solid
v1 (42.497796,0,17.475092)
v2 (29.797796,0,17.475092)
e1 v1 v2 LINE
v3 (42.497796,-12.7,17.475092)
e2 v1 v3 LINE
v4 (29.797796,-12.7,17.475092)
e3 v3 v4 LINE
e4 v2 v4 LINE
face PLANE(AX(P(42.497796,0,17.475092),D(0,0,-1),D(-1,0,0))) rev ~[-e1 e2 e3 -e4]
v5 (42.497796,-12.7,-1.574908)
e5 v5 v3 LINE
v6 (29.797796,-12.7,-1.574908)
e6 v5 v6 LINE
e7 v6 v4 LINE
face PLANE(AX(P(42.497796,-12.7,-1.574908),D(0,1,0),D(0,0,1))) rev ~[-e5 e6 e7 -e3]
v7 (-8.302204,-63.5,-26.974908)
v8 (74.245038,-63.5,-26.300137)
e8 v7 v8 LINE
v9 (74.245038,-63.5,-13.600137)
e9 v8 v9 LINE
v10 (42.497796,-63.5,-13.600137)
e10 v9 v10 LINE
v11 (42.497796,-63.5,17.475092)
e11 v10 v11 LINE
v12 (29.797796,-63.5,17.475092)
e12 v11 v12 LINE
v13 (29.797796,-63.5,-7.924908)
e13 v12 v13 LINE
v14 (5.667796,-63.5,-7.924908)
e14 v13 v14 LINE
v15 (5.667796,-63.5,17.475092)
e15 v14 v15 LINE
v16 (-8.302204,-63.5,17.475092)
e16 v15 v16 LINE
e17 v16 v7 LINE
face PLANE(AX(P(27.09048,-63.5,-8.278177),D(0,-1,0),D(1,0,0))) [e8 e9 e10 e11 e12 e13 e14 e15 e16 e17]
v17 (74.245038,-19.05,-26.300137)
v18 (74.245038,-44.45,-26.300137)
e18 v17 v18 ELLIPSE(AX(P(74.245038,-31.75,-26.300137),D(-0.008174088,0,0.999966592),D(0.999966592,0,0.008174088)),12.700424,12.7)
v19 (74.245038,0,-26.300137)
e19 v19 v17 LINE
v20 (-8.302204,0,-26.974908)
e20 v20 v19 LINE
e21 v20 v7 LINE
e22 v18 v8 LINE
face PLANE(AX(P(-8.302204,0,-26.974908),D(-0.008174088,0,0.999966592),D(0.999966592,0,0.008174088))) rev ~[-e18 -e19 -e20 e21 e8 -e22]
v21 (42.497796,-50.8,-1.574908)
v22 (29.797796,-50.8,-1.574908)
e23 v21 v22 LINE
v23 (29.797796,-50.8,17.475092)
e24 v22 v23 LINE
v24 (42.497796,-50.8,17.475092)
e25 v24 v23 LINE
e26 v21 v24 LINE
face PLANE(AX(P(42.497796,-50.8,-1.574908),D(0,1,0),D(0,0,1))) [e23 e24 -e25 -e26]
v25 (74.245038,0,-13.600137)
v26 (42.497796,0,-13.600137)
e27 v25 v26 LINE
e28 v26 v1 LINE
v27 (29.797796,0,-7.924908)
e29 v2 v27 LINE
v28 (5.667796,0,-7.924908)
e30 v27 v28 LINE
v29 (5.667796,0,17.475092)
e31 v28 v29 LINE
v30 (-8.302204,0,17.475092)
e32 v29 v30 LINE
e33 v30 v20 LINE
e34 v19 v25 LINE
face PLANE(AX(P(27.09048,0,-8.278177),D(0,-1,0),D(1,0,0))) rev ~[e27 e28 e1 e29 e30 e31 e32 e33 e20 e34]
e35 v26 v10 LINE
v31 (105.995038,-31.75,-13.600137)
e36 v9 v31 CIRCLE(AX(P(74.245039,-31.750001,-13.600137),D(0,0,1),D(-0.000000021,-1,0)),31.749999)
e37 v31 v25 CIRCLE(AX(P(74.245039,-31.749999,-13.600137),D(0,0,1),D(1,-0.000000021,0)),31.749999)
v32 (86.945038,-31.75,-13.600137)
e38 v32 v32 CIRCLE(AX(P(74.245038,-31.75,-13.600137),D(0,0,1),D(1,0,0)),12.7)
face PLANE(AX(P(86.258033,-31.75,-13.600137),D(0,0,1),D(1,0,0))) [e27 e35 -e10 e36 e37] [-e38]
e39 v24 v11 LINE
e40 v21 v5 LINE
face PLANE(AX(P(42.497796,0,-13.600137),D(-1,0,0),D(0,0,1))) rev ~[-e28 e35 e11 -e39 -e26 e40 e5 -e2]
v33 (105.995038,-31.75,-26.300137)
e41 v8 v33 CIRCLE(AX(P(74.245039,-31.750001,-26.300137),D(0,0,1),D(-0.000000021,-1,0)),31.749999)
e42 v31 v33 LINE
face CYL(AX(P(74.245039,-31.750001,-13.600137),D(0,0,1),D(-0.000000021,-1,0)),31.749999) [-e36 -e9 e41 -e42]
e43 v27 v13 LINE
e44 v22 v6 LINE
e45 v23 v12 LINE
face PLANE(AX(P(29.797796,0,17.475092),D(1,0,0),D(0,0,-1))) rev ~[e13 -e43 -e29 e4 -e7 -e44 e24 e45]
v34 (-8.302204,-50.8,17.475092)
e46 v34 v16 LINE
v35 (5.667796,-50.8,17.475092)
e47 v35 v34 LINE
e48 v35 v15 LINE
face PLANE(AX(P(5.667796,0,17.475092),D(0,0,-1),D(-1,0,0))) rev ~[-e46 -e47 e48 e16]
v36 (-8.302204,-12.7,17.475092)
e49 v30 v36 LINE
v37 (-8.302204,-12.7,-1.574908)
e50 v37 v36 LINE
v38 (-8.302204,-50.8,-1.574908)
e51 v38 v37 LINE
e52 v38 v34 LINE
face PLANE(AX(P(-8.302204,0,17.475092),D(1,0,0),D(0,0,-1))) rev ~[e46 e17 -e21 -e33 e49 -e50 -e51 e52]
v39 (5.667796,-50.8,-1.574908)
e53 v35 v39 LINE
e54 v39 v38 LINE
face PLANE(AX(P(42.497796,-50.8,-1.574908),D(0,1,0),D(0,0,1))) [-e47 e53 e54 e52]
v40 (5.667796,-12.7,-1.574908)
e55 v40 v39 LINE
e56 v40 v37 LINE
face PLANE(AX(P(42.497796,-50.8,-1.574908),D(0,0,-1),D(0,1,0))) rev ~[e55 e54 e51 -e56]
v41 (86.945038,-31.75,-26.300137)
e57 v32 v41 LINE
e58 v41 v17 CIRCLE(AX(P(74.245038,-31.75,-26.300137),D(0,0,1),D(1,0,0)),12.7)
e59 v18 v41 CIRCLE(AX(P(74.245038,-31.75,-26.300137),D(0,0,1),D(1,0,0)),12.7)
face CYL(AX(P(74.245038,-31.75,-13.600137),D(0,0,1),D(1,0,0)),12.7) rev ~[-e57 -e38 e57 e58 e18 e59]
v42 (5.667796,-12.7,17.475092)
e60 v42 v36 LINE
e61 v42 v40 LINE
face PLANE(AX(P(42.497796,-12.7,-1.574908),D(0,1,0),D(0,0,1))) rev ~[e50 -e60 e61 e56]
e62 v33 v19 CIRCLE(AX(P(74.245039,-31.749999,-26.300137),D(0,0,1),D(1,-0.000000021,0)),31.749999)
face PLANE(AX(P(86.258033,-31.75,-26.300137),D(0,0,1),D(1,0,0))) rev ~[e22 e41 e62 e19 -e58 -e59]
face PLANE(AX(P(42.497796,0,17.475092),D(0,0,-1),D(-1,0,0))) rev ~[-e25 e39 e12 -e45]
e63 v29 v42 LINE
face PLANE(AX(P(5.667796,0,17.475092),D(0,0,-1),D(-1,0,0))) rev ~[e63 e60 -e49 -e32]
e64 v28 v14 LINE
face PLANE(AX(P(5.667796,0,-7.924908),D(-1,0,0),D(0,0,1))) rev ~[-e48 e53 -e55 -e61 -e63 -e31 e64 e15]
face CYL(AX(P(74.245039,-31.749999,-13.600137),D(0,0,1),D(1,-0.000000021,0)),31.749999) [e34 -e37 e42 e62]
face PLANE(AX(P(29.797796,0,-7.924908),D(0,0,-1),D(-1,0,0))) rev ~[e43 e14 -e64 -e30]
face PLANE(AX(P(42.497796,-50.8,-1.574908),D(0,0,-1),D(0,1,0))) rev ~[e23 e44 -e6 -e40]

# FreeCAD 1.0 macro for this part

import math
import FreeCAD as App
import Part
import Sketcher

V = App.Vector
Q = App.Units.Quantity


def add_polygon(sketch, points):
    """Adds a closed chain of lines whose ends are joined by coincident constraints."""
    first, n = sketch.GeometryCount, len(points)
    for a, b in zip(points, points[1:] + points[:1]):
        sketch.addGeometry(Part.LineSegment(App.Vector(*a, 0), App.Vector(*b, 0)), False)
    for i in range(n):
        sketch.addConstraint(Sketcher.Constraint("Coincident", first + i, 2, first + (i + 1) % n, 1))

doc = App.newDocument("Part")
body = doc.addObject("PartDesign::Body", "Body")

sketch1 = body.newObject("Sketcher::SketchObject", "Sketch")
sketch1.AttachmentSupport = (doc.getObject("XZ_Plane"), [""])
sketch1.MapMode = "FlatFace"
add_polygon(sketch1, [(6, 17), (-8, 17), (-8, -27), (74, -26), (74, -14), (42, -14), (42, 17), (30, 17), (30, -8), (6, -8)])
sketch1.addConstraint([
    Sketcher.Constraint("Horizontal", 0),
    Sketcher.Constraint("Vertical", 1),
    Sketcher.Constraint("Vertical", 3),
    Sketcher.Constraint("Horizontal", 4),
    Sketcher.Constraint("Vertical", 5),
    Sketcher.Constraint("Horizontal", 6),
    Sketcher.Constraint("Vertical", 7),
    Sketcher.Constraint("Horizontal", 8),
    Sketcher.Constraint("Vertical", 9),
    Sketcher.Constraint("Horizontal", 0, 2, 5, 2),
    Sketcher.Constraint("Equal", 6, 3),
    Sketcher.Constraint("DistanceY", 7, 2, 7, 1, Q("1 in")),
    Sketcher.Constraint("DistanceX", 6, 2, 6, 1, Q("0.5 in")),
    Sketcher.Constraint("DistanceX", 1, 2, 4, 2, Q("2 in")),
    Sketcher.Constraint("DistanceX", 0, 2, 0, 1, Q("0.55 in")),
    Sketcher.Constraint("DistanceY", 1, 2, 1, 1, Q("1.75 in")),
    Sketcher.Constraint("Distance", 2, Q("3.25 in")),
    Sketcher.Constraint("DistanceX", 4, 2, 4, 1, Q("31.747242 mm")),
    Sketcher.Constraint("DistanceY", -1, 1, 0, 2, Q("17.475092 mm")),
    Sketcher.Constraint("DistanceX", 0, 2, -1, 1, Q("8.302204 mm")),
])
pad1 = body.newObject("PartDesign::Pad", "Pad")
pad1.Profile = sketch1
pad1.Length = Q("2.5 in")

sketch2 = body.newObject("Sketcher::SketchObject", "Sketch001")
sketch2.AttachmentSupport = (doc.getObject("XY_Plane"), [""])
sketch2.MapMode = "FlatFace"
sketch2.AttachmentOffset = App.Placement(V(0, 0, -13.600137), App.Rotation())
sketch2.addGeometry([
    Part.ArcOfCircle(Part.Circle(V(74, -32, 0), V(0, 0, 1), 32), math.radians(-90), math.radians(0)),
    Part.ArcOfCircle(Part.Circle(V(74, -32, 0), V(0, 0, 1), 32), math.radians(0), math.radians(90)),
    Part.LineSegment(V(74, 0, 0), V(74, -64, 0)),
], False)
sketch2.addConstraint([
    Sketcher.Constraint("Tangent", 0, 2, 1, 1),
    Sketcher.Constraint("Coincident", 1, 2, 2, 1),
    Sketcher.Constraint("Coincident", 2, 2, 0, 1),
    Sketcher.Constraint("Vertical", 2),
    Sketcher.Constraint("Equal", 0, 1),
    Sketcher.Constraint("PointOnObject", 1, 2, -1),
    Sketcher.Constraint("Horizontal", 1, 3, 0, 2),
    Sketcher.Constraint("Vertical", 0, 3, 1, 2),
    Sketcher.Constraint("Radius", 0, Q("1.25 in")),
    Sketcher.Constraint("DistanceX", -1, 1, 0, 3, Q("74.245039 mm")),
])
pad2 = body.newObject("PartDesign::Pad", "Pad001")
pad2.Profile = sketch2
pad2.Length = Q("0.5 in")
pad2.Reversed = True

sketch3 = body.newObject("Sketcher::SketchObject", "Sketch002")
sketch3.AttachmentSupport = (doc.getObject("XY_Plane"), [""])
sketch3.MapMode = "FlatFace"
sketch3.AttachmentOffset = App.Placement(V(0, 0, -13.600137), App.Rotation())
sketch3.addGeometry(Part.Circle(V(74, -32, 0), V(0, 0, 1), 13), False)
sketch3.addConstraint([
    Sketcher.Constraint("Diameter", 0, Q("1 in")),
    Sketcher.Constraint("DistanceY", 0, 3, -1, 1, Q("1.25 in")),
    Sketcher.Constraint("DistanceX", -1, 1, 0, 3, Q("74.245038 mm")),
])
pocket1 = body.newObject("PartDesign::Pocket", "Pocket")
pocket1.Profile = sketch3
pocket1.Length = Q("1 in")

sketch4 = body.newObject("Sketcher::SketchObject", "Sketch003")
sketch4.AttachmentSupport = (doc.getObject("YZ_Plane"), [""])
sketch4.MapMode = "FlatFace"
sketch4.AttachmentOffset = App.Placement(V(0, 0, 42.497796), App.Rotation())
add_polygon(sketch4, [(-51, 17), (-51, -2), (-13, -2), (-13, 17)])
sketch4.addConstraint([
    Sketcher.Constraint("Vertical", 0),
    Sketcher.Constraint("Horizontal", 1),
    Sketcher.Constraint("Vertical", 2),
    Sketcher.Constraint("Horizontal", 3),
    Sketcher.Constraint("DistanceX", 1, 1, 1, 2, Q("1.5 in")),
    Sketcher.Constraint("DistanceX", 0, 2, -1, 1, Q("2 in")),
    Sketcher.Constraint("DistanceY", 0, 2, 0, 1, Q("0.75 in")),
    Sketcher.Constraint("DistanceY", -1, 1, 2, 2, Q("17.475092 mm")),
])
pocket2 = body.newObject("PartDesign::Pocket", "Pocket001")
pocket2.Profile = sketch4
pocket2.Type = "ThroughAll"

doc.recompute()
